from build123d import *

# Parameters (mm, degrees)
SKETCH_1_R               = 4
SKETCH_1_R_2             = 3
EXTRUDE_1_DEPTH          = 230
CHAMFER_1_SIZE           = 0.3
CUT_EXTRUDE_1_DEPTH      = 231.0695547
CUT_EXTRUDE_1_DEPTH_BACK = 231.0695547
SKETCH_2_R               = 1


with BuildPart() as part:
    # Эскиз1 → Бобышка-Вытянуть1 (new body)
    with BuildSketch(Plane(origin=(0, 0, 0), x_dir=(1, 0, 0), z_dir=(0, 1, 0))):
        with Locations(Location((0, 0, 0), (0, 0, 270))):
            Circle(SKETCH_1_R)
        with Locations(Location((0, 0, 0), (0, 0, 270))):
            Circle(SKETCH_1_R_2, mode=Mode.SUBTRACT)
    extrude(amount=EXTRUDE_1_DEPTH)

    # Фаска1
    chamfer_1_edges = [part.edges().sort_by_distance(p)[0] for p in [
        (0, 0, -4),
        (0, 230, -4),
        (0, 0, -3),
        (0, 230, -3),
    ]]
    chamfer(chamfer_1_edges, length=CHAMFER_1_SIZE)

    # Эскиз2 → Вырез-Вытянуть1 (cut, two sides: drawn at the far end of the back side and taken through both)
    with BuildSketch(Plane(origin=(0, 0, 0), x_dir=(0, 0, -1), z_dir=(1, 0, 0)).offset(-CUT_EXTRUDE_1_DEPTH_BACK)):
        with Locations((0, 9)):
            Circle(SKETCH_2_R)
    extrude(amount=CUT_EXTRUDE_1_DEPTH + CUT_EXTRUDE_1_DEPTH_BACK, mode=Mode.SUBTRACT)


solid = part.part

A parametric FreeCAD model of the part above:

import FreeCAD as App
import Part
import Sketcher
Q = App.Units.Quantity


def edges_at(feature, points):
    """Names of the edges that pass closest to the given points."""
    edges = feature.Shape.Edges
    near = lambda p: min(range(len(edges)), key=lambda i: edges[i].distToShape(Part.Vertex(*p))[0])
    return sorted({f"Edge{near(p) + 1}" for p in points})

doc = App.newDocument("Part")
params = doc.addObject("Spreadsheet::Sheet", "Params")
for row, (alias, value) in enumerate([
    ("sketch1_diameter", "8 mm"),
    ("sketch1_diameter2", "6 mm"),
    ("pad1_length", "230 mm"),
    ("chamfer_size", "0.3 mm"),
    ("sketch2_diameter", "2 mm"),
], start=1):
    params.set(f"A{row}", alias)
    params.set(f"B{row}", "=" + value)
    params.setAlias(f"B{row}", alias)

body = doc.addObject("PartDesign::Body", "Body")

# Sketch on XZ plane
sketch1 = body.newObject("Sketcher::SketchObject", "Sketch")
sketch1.AttachmentSupport = (doc.getObject("XZ_Plane"), [""])
sketch1.MapMode = "FlatFace"
sketch1.addGeometry([
    Part.Circle(App.Vector(0, 0, 0), App.Vector(0, 0, 1), 4),
    Part.Circle(App.Vector(0, 0, 0), App.Vector(0, 0, 1), 3),
], False)
sketch1.addConstraint([
    Sketcher.Constraint("Coincident", 0, 3, -1, 1),
    Sketcher.Constraint("Coincident", 1, 3, -1, 1),
    Sketcher.Constraint("Diameter", 0, Q("8 mm")),
    Sketcher.Constraint("Diameter", 1, Q("6 mm")),
])
sketch1.setExpression("Constraints[2]", "Params.sketch1_diameter")
sketch1.setExpression("Constraints[3]", "Params.sketch1_diameter2")
pad1 = body.newObject("PartDesign::Pad", "Pad")
pad1.Profile = sketch1
pad1.setExpression("Length", "Params.pad1_length")
pad1.Reversed = True
doc.recompute()

chamfer = body.newObject("PartDesign::Chamfer", "Chamfer")
chamfer.Base = (pad1, edges_at(pad1, [
    (0, 0, -4),
    (0, 230, -4),
    (0, 0, -3),
    (0, 230, -3),
]))
chamfer.setExpression("Size", "Params.chamfer_size")

# Sketch on YZ plane
sketch2 = body.newObject("Sketcher::SketchObject", "Sketch001")
sketch2.AttachmentSupport = (doc.getObject("YZ_Plane"), [""])
sketch2.MapMode = "FlatFace"
sketch2.addGeometry(Part.Circle(App.Vector(9, 0, 0), App.Vector(0, 0, 1), 1), False)
sketch2.addConstraint([
    Sketcher.Constraint("PointOnObject", 0, 3, -1),
    Sketcher.Constraint("Diameter", 0, Q("2 mm")),
    Sketcher.Constraint("DistanceX", -1, 1, 0, 3, Q("9 mm")),
])
sketch2.setExpression("Constraints[1]", "Params.sketch2_diameter")
pocket1 = body.newObject("PartDesign::Pocket", "Pocket")
pocket1.Profile = sketch2
pocket1.Type = "ThroughAll"
pocket1.Midplane = True

doc.recompute()
